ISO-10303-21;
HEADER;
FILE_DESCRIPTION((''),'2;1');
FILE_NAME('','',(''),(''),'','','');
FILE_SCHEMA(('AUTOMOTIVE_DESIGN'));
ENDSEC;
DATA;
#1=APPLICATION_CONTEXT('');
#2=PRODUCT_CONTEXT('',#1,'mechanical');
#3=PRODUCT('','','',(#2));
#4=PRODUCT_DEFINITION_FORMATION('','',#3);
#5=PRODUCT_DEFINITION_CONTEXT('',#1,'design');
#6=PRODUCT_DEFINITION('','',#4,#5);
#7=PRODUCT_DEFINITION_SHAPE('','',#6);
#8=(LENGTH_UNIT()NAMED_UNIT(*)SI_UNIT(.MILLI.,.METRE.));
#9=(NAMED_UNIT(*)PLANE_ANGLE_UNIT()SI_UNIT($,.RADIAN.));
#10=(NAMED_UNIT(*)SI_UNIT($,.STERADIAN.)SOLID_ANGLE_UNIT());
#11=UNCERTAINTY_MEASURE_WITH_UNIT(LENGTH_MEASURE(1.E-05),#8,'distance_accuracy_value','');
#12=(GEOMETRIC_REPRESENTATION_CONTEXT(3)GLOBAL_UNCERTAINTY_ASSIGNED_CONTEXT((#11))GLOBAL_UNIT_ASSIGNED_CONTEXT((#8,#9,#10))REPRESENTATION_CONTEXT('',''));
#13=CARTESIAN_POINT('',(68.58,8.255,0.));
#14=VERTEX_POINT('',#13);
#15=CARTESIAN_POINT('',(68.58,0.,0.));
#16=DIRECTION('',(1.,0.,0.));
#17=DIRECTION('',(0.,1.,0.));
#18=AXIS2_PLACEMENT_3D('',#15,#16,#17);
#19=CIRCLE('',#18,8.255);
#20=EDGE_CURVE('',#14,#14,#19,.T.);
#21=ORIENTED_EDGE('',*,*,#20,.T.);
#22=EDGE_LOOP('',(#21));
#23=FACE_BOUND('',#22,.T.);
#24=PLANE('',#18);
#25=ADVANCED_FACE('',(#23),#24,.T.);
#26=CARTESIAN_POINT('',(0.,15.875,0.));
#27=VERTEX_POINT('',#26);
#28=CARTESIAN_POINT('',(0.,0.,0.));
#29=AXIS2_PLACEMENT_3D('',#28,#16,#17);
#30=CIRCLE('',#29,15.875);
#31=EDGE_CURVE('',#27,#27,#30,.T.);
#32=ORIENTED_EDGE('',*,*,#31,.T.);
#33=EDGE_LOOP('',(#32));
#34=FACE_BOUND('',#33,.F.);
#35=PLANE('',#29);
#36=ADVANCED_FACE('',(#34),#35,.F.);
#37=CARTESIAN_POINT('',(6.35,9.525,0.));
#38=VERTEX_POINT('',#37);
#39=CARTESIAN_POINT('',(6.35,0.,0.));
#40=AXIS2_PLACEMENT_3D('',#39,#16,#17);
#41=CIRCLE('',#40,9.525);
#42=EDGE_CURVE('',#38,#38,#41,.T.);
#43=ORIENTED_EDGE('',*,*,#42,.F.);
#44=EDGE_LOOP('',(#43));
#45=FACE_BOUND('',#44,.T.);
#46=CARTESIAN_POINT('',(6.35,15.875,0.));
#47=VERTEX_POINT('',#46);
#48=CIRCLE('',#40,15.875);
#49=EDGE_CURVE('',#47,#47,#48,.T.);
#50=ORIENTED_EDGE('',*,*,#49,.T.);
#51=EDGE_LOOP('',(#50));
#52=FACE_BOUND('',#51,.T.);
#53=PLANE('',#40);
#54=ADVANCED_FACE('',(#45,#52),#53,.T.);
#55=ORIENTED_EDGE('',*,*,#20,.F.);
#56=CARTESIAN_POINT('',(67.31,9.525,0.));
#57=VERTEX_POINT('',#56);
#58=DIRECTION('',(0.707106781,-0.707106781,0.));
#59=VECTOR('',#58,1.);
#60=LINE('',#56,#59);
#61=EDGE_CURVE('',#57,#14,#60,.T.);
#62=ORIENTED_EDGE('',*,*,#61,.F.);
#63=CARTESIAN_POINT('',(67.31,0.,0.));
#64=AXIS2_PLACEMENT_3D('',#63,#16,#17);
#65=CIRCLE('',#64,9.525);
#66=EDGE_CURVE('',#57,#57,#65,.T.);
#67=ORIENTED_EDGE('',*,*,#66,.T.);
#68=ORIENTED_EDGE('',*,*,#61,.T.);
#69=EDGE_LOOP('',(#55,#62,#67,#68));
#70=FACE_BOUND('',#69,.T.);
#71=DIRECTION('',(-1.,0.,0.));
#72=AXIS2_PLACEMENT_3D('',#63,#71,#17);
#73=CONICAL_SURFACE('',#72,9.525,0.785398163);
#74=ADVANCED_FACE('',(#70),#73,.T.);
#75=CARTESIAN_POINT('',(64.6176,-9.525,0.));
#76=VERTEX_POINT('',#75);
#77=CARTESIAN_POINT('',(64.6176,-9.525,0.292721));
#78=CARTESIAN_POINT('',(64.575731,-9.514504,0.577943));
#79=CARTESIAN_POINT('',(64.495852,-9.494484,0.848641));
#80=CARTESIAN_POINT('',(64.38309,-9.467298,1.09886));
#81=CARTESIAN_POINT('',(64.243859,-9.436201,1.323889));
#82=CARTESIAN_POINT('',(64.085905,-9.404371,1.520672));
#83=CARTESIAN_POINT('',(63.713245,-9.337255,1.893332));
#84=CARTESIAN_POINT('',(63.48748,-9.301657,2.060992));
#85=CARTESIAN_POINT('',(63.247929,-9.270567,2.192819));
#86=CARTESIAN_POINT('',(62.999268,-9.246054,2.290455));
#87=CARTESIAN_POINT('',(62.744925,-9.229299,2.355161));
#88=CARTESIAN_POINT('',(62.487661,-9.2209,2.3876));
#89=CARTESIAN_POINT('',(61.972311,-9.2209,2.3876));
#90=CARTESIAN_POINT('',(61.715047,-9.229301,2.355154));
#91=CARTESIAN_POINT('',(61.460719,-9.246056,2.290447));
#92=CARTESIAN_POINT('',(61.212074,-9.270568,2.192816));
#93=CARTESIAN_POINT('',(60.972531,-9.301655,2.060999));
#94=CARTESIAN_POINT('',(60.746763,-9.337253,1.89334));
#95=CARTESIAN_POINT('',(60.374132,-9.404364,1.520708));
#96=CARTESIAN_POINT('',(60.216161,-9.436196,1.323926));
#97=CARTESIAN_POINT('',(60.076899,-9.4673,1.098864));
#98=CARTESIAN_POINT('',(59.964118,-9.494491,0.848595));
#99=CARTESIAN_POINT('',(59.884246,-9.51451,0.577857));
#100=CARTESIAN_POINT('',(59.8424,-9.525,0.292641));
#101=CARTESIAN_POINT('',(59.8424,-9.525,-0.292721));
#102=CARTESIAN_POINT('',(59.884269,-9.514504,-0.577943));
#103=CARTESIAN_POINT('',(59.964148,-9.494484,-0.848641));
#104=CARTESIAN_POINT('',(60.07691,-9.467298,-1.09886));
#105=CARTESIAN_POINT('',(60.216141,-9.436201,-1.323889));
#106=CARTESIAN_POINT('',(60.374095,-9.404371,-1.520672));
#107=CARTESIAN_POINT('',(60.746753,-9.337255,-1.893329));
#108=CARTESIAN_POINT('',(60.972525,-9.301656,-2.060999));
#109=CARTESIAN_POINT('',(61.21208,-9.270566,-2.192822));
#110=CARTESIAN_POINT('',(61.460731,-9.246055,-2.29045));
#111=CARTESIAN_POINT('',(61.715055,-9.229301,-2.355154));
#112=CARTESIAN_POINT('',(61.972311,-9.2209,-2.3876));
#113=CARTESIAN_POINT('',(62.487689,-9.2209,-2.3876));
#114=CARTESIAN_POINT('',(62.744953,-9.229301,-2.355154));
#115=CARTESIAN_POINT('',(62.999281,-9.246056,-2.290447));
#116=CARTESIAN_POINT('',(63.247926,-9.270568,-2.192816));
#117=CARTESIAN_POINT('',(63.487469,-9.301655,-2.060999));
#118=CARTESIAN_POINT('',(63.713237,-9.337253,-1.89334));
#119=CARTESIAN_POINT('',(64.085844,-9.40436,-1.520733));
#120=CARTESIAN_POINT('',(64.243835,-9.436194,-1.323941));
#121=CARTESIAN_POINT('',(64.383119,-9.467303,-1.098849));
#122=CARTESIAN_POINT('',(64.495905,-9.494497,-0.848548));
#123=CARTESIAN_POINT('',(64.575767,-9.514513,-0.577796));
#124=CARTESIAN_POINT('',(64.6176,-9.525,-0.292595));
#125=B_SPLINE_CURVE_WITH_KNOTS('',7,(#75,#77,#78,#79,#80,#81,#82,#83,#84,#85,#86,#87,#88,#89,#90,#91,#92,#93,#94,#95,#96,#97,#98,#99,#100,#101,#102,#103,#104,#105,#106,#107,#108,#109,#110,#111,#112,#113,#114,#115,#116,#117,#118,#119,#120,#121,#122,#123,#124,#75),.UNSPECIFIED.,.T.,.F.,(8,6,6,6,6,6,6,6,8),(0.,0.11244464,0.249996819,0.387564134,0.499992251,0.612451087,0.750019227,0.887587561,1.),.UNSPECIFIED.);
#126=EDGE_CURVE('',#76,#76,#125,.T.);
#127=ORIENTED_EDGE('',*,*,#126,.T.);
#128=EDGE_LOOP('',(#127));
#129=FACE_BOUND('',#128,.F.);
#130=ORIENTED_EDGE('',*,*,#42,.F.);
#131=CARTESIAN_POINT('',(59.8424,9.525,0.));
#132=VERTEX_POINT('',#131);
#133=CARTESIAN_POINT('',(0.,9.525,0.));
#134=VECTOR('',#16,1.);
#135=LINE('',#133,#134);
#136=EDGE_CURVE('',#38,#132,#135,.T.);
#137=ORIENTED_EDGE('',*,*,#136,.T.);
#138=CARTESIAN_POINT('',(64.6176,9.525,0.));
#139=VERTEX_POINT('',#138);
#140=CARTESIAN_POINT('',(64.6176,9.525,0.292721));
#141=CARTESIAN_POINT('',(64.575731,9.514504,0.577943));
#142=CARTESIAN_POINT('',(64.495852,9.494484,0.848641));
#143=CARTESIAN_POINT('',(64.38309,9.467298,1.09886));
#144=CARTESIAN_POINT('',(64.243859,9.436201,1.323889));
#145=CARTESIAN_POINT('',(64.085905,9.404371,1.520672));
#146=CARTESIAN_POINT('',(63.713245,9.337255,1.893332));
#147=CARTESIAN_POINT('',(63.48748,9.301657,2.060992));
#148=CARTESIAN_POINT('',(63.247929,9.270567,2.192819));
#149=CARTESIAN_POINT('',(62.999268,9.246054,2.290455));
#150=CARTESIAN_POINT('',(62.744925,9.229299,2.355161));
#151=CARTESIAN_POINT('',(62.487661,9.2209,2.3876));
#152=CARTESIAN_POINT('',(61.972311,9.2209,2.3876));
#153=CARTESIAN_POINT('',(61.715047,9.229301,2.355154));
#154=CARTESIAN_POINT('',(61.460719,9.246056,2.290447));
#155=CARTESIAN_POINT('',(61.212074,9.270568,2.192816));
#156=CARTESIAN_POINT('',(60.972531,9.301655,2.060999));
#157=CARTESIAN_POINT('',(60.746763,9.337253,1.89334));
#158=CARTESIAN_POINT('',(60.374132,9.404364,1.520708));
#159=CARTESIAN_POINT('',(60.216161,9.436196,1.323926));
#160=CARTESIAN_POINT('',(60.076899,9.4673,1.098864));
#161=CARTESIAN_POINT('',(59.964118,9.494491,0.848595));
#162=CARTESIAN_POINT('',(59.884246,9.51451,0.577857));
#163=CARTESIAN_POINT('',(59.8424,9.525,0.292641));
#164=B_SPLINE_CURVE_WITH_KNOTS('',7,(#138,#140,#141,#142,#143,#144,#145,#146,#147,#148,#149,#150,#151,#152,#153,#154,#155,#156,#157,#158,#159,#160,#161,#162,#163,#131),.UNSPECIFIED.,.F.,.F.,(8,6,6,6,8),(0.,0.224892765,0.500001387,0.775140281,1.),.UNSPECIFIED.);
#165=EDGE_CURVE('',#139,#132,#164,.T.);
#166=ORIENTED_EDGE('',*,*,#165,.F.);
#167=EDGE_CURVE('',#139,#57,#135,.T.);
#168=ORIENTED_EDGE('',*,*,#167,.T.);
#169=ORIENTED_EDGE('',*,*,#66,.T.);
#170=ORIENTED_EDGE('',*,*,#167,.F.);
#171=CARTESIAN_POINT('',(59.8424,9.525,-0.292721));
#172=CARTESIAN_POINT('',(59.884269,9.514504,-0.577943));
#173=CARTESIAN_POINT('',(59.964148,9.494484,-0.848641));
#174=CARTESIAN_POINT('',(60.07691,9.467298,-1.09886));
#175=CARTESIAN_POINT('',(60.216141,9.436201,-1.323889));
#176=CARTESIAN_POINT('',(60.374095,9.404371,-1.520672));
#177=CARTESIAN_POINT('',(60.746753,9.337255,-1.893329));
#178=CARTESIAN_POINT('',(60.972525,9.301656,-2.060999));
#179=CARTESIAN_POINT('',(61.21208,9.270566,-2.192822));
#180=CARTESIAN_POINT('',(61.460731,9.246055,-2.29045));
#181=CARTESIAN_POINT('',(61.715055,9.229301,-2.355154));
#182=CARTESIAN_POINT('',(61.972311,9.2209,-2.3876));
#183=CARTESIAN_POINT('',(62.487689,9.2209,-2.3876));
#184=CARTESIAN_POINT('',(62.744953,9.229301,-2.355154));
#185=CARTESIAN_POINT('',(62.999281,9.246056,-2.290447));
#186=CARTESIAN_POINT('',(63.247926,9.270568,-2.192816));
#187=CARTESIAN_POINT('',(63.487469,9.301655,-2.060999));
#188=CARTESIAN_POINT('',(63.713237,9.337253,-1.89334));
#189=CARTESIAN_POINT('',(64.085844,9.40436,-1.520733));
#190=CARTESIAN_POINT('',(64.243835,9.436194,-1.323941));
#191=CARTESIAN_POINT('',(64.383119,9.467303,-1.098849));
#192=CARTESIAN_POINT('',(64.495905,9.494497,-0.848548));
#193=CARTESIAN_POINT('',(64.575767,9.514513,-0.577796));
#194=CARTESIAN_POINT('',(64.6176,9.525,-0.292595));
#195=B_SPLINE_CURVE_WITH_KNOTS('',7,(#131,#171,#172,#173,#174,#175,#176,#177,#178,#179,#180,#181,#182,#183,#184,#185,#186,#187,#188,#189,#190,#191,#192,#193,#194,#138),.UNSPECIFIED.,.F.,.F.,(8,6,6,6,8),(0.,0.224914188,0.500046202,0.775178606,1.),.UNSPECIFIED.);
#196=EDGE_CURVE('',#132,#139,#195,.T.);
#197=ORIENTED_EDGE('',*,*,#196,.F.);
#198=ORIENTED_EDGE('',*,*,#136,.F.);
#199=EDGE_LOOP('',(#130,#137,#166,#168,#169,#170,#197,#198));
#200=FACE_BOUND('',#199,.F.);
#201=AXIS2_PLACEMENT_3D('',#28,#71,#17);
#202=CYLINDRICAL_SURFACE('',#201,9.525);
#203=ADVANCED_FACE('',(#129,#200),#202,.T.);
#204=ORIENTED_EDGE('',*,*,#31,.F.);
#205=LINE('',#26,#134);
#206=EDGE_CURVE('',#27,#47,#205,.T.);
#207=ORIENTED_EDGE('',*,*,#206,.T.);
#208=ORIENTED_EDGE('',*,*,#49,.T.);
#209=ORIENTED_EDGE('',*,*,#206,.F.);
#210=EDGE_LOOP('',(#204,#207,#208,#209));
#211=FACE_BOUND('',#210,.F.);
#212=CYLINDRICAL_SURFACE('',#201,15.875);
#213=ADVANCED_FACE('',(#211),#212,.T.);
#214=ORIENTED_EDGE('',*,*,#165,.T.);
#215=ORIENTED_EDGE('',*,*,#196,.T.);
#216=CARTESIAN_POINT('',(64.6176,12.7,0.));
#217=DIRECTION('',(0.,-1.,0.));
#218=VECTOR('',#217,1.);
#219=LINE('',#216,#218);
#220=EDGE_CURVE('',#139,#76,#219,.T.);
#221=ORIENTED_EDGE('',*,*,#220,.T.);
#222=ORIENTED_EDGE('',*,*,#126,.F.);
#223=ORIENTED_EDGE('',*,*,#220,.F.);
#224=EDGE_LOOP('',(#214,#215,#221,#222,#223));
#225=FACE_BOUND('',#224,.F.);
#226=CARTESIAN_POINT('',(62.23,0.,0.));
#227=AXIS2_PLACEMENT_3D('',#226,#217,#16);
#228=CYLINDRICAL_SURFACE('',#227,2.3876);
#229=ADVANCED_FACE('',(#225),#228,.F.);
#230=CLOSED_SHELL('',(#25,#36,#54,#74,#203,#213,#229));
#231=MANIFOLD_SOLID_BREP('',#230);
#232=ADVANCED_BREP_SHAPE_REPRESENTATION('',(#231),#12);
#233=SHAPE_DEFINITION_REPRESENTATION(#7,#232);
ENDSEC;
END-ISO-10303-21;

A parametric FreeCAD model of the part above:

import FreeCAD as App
import Part
import Sketcher

V = App.Vector
Q = App.Units.Quantity


def edges_at(feature, points):
    """Names of the edges that pass closest to the given points."""
    edges = feature.Shape.Edges
    near = lambda p: min(range(len(edges)), key=lambda i: edges[i].distToShape(Part.Vertex(*p))[0])
    return sorted({f"Edge{near(p) + 1}" for p in points})

doc = App.newDocument("Part")
params = doc.addObject("Spreadsheet::Sheet", "Params")
for row, (alias, value) in enumerate([
    ("sketch1_diameter", "1.25 in"),
    ("sketch1_diameter2", "0.75 in"),
    ("pad1_length", "0.25 in"),
    ("sketch2_diameter", "0.75 in"),
    ("pad2_length", "2.7 in"),
    ("sketch3_diameter", "0.188 in"),
    ("pocket1_length", "1 in"),
    ("chamfer_size", "0.05 in"),
    ("chamfer_size2", "0.05 in"),
], start=1):
    params.set(f"A{row}", alias)
    params.set(f"B{row}", "=" + value)
    params.setAlias(f"B{row}", alias)

body = doc.addObject("PartDesign::Body", "Body")

# Sketch on YZ plane
sketch1 = body.newObject("Sketcher::SketchObject", "Sketch")
sketch1.AttachmentSupport = (doc.getObject("YZ_Plane"), [""])
sketch1.MapMode = "FlatFace"
sketch1.addGeometry(Part.Circle(V(0, 0, 0), V(0, 0, 1), 16), False)
sketch1.addGeometry(Part.Circle(V(0, 0, 0), V(0, 0, 1), 10), False)
sketch1.addConstraint(Sketcher.Constraint("Coincident", 0, 3, -1, 1))
sketch1.addConstraint(Sketcher.Constraint("Coincident", 1, 3, -1, 1))
sketch1.addConstraint(Sketcher.Constraint("Diameter", 0, Q("1.25 in")))
sketch1.addConstraint(Sketcher.Constraint("Diameter", 1, Q("0.75 in")))
sketch1.setExpression("Constraints[2]", "Params.sketch1_diameter")
sketch1.setExpression("Constraints[3]", "Params.sketch1_diameter2")
pad1 = body.newObject("PartDesign::Pad", "Pad")
pad1.Profile = sketch1
pad1.setExpression("Length", "Params.pad1_length")

# Sketch on YZ plane
sketch2 = body.newObject("Sketcher::SketchObject", "Sketch001")
sketch2.AttachmentSupport = (doc.getObject("YZ_Plane"), [""])
sketch2.MapMode = "FlatFace"
sketch2.addGeometry(Part.Circle(V(0, 0, 0), V(0, 0, 1), 10), False)
sketch2.addConstraint(Sketcher.Constraint("Coincident", 0, 3, -1, 1))
sketch2.addConstraint(Sketcher.Constraint("Diameter", 0, Q("0.75 in")))
sketch2.setExpression("Constraints[1]", "Params.sketch2_diameter")
pad2 = body.newObject("PartDesign::Pad", "Pad001")
pad2.Profile = sketch2
pad2.setExpression("Length", "Params.pad2_length")

# Sketch on XZ plane
sketch3 = body.newObject("Sketcher::SketchObject", "Sketch002")
sketch3.AttachmentSupport = (doc.getObject("XZ_Plane"), [""])
sketch3.MapMode = "FlatFace"
sketch3.addGeometry(Part.Circle(V(62.2, 0, 0), V(0, 0, 1), 2.4), False)
sketch3.addConstraint(Sketcher.Constraint("PointOnObject", 0, 3, -1))
sketch3.addConstraint(Sketcher.Constraint("Diameter", 0, Q("0.188 in")))
sketch3.addConstraint(Sketcher.Constraint("DistanceX", -1, 1, 0, 3, Q("2.45 in")))
sketch3.setExpression("Constraints[1]", "Params.sketch3_diameter")
pocket1 = body.newObject("PartDesign::Pocket", "Pocket")
pocket1.Profile = sketch3
pocket1.setExpression("Length", "Params.pocket1_length")
pocket1.Midplane = True
doc.recompute()

chamfer = body.newObject("PartDesign::Chamfer", "Chamfer")
chamfer.Base = (pocket1, edges_at(pocket1, [(68.58, -9.525, 0)]))
chamfer.ChamferType = "Two distances"
chamfer.setExpression("Size", "Params.chamfer_size")
chamfer.setExpression("Size2", "Params.chamfer_size2")

doc.recompute()
